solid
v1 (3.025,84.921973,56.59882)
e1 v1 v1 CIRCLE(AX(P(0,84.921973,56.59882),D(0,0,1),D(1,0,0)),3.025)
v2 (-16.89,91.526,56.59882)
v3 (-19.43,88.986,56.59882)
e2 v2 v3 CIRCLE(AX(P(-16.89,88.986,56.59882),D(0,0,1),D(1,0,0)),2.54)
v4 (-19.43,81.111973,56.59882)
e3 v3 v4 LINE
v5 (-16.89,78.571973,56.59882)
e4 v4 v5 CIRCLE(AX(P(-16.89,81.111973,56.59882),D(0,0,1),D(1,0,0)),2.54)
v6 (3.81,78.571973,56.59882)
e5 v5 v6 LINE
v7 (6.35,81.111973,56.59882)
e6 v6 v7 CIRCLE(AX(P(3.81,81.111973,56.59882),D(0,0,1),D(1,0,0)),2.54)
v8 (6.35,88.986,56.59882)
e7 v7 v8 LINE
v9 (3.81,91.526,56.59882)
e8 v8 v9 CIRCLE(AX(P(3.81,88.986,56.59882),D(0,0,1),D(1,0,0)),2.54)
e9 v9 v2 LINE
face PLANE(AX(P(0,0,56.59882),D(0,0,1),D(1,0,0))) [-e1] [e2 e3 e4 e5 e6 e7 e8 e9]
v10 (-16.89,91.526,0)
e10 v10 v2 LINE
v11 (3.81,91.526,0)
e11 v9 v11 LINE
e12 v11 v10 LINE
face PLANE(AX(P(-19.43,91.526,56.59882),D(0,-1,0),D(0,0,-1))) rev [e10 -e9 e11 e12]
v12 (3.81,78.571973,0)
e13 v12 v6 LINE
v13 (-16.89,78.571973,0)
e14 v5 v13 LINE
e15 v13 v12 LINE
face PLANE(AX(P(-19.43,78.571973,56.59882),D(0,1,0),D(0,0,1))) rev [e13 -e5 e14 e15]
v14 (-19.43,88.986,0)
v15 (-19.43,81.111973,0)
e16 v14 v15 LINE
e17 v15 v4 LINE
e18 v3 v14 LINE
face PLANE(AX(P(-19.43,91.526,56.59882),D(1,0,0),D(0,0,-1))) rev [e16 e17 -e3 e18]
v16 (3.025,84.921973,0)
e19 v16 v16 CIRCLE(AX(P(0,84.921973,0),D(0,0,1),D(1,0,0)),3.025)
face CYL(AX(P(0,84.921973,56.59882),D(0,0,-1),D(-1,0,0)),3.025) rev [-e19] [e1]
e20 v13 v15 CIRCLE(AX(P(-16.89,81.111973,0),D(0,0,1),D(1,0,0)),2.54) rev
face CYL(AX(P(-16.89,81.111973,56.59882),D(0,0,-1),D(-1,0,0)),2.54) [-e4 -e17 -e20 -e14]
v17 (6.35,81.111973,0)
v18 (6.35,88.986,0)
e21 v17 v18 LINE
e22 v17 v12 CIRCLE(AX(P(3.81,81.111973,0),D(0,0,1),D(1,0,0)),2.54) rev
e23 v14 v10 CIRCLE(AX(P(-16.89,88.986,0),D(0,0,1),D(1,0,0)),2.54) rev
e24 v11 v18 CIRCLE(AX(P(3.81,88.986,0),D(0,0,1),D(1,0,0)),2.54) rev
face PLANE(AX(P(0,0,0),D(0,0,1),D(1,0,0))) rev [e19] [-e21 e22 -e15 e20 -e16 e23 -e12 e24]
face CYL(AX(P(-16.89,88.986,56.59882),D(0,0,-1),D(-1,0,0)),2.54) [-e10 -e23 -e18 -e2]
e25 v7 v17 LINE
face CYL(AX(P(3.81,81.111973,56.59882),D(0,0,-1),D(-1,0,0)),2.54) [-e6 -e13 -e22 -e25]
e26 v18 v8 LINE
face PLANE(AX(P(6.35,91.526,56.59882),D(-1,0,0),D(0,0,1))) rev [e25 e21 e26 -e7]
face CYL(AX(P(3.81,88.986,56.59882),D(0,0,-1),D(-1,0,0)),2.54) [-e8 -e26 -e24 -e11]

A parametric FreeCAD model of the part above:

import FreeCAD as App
import Part
import Sketcher

V = App.Vector
Q = App.Units.Quantity


def edges_at(feature, points):
    """Names of the edges that pass closest to the given points."""
    edges = feature.Shape.Edges
    near = lambda p: min(range(len(edges)), key=lambda i: edges[i].distToShape(Part.Vertex(*p))[0])
    return sorted({f"Edge{near(p) + 1}" for p in points})


def add_polygon(sketch, points):
    """Adds a closed chain of lines whose ends are joined by coincident constraints."""
    first, n = sketch.GeometryCount, len(points)
    for a, b in zip(points, points[1:] + points[:1]):
        sketch.addGeometry(Part.LineSegment(App.Vector(*a, 0), App.Vector(*b, 0)), False)
    for i in range(n):
        sketch.addConstraint(Sketcher.Constraint("Coincident", first + i, 2, first + (i + 1) % n, 1))

doc = App.newDocument("Part")
body = doc.addObject("PartDesign::Body", "Body")

# Sketch on XY plane
sketch1 = body.newObject("Sketcher::SketchObject", "Sketch")
sketch1.AttachmentSupport = (doc.getObject("XY_Plane"), [""])
sketch1.MapMode = "FlatFace"
add_polygon(sketch1, [(-19.4, 91.5), (-19.4, 78.6), (6.3, 78.6), (6.3, 91.5)])  # lines 0-3
sketch1.addGeometry(Part.Circle(V(0, 84.9, 0), V(0, 0, 1), 3), False)  # 4
sketch1.addConstraint(Sketcher.Constraint("Vertical", 0))
sketch1.addConstraint(Sketcher.Constraint("Horizontal", 1))
sketch1.addConstraint(Sketcher.Constraint("Vertical", 2))
sketch1.addConstraint(Sketcher.Constraint("Horizontal", 3))
sketch1.addConstraint(Sketcher.Constraint("PointOnObject", 4, 3, -2))
sketch1.addConstraint(Sketcher.Constraint("Diameter", 4, Q("6.05 mm")))
sketch1.addConstraint(Sketcher.Constraint("DistanceX", -1, 1, 1, 2, Q("0.25 in")))
sketch1.addConstraint(Sketcher.Constraint("DistanceY", 0, 2, 4, 3, Q("0.25 in")))
sketch1.addConstraint(Sketcher.Constraint("DistanceX", 1, 1, 1, 2, Q("25.78 mm")))
sketch1.addConstraint(Sketcher.Constraint("DistanceY", -1, 1, 2, 2, Q("91.526 mm")))
sketch1.addConstraint(Sketcher.Constraint("DistanceY", 0, 2, 0, 1, Q("12.954027 mm")))
pad1 = body.newObject("PartDesign::Pad", "Pad")
pad1.Profile = sketch1
pad1.Length = Q("2.2283 in")
doc.recompute()

fillet = body.newObject("PartDesign::Fillet", "Fillet")
fillet.Base = (pad1, edges_at(pad1, [
    (-19.43, 91.526, 28.299),
    (6.35, 91.526, 28.299),
    (6.35, 78.572, 28.299),
    (-19.43, 78.572, 28.299),
]))
fillet.Radius = Q("0.1 in")

doc.recompute()
